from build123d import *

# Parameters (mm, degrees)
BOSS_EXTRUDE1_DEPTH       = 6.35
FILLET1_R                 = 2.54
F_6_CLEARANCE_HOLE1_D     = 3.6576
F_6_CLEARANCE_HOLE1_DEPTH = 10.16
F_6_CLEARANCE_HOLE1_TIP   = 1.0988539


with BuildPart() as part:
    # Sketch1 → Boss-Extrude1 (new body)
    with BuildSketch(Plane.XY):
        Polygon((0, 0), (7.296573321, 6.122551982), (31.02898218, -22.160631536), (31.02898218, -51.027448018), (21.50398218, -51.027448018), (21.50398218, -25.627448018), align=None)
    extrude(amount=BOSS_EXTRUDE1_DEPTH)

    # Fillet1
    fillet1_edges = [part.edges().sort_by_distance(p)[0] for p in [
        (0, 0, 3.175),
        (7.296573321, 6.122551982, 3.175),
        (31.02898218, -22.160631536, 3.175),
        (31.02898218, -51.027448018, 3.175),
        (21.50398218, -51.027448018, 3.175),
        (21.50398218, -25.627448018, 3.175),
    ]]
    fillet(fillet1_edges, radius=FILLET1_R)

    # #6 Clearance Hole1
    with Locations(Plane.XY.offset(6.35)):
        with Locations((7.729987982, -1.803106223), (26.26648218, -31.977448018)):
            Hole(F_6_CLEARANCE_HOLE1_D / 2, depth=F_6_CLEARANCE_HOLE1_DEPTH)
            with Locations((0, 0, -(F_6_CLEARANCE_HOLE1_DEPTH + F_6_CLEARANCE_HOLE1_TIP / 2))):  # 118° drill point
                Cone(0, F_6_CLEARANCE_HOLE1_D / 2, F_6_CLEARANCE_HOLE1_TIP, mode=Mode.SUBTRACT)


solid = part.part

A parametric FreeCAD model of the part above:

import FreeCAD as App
import Part
import Sketcher

V = App.Vector
Q = App.Units.Quantity


def edges_at(feature, points):
    """Names of the edges that pass closest to the given points."""
    edges = feature.Shape.Edges
    near = lambda p: min(range(len(edges)), key=lambda i: edges[i].distToShape(Part.Vertex(*p))[0])
    return sorted({f"Edge{near(p) + 1}" for p in points})


def add_polygon(sketch, points):
    """Adds a closed chain of lines whose ends are joined by coincident constraints."""
    first, n = sketch.GeometryCount, len(points)
    for a, b in zip(points, points[1:] + points[:1]):
        sketch.addGeometry(Part.LineSegment(App.Vector(*a, 0), App.Vector(*b, 0)), False)
    for i in range(n):
        sketch.addConstraint(Sketcher.Constraint("Coincident", first + i, 2, first + (i + 1) % n, 1))

doc = App.newDocument("Part")
body = doc.addObject("PartDesign::Body", "Body")

# Sketch on XY plane
sketch1 = body.newObject("Sketcher::SketchObject", "Sketch")
sketch1.AttachmentSupport = (doc.getObject("XY_Plane"), [""])
sketch1.MapMode = "FlatFace"
add_polygon(sketch1, [(7, 6), (0, 0), (22, -26), (22, -51), (31, -51), (31, -22)])  # lines 0-5
sketch1.addConstraint(Sketcher.Constraint("Vertical", 2))
sketch1.addConstraint(Sketcher.Constraint("Horizontal", 3))
sketch1.addConstraint(Sketcher.Constraint("Vertical", 4))
sketch1.addConstraint(Sketcher.Constraint("Coincident", 0, 2, -1, 1))
sketch1.addConstraint(Sketcher.Constraint("Perpendicular", 0, 1))
sketch1.addConstraint(Sketcher.Constraint("Parallel", 1, 5))
sketch1.addConstraint(Sketcher.Constraint("DistanceY", 2, 2, 2, 1, Q("1 in")))
sketch1.addConstraint(Sketcher.Constraint("Angle", 0, Q("-140 deg")))
sketch1.addConstraint(Sketcher.Constraint("DistanceX", 3, 1, 3, 2, Q("0.375 in")))
sketch1.addConstraint(Sketcher.Constraint("DistanceY", 1, 2, 5, 2, Q("1.25 in")))
sketch1.addConstraint(Sketcher.Constraint("Distance", 0, Q("0.375 in")))
pad1 = body.newObject("PartDesign::Pad", "Pad")
pad1.Profile = sketch1
pad1.Length = Q("0.25 in")
doc.recompute()

fillet = body.newObject("PartDesign::Fillet", "Fillet")
fillet.Base = (pad1, edges_at(pad1, [
    (0, 0, 3.175),
    (7.297, 6.123, 3.175),
    (31.029, -22.161, 3.175),
    (31.029, -51.027, 3.175),
    (21.504, -51.027, 3.175),
    (21.504, -25.627, 3.175),
]))
fillet.Radius = Q("0.1 in")

# Sketch on XY plane
sketch2 = body.newObject("Sketcher::SketchObject", "Sketch001")
sketch2.AttachmentSupport = (doc.getObject("XY_Plane"), [""])
sketch2.MapMode = "FlatFace"
sketch2.AttachmentOffset = App.Placement(V(0, 0, 0.25 * 25.4), App.Rotation())
sketch2.addGeometry(Part.Circle(V(7.7, -1.8, 0), V(0, 0, 1), 1.8), False)
sketch2.addGeometry(Part.Circle(V(26.3, -32, 0), V(0, 0, 1), 1.8), False)
sketch2.addConstraint(Sketcher.Constraint("Equal", 0, 1))
sketch2.addConstraint(Sketcher.Constraint("Diameter", 0, Q("0.144 in")))
sketch2.addConstraint(Sketcher.Constraint("DistanceY", 1, 3, -1, 1, 31.977448))
sketch2.addConstraint(Sketcher.Constraint("DistanceY", 1, 3, 0, 3, 30.174342))
sketch2.addConstraint(Sketcher.Constraint("DistanceX", -1, 1, 0, 3, 7.729988))
sketch2.addConstraint(Sketcher.Constraint("DistanceX", -1, 1, 1, 3, 26.266482))
doc.recompute()
hole = body.newObject("PartDesign::Hole", "Hole")
hole.Profile = sketch2
hole.ThreadType = "None"
hole.Diameter = Q("0.144 in")
hole.DepthType = "Dimension"
hole.Depth = Q("0.4 in")
hole.DrillPoint = "Angled"
hole.DrillPointAngle = 118

doc.recompute()
